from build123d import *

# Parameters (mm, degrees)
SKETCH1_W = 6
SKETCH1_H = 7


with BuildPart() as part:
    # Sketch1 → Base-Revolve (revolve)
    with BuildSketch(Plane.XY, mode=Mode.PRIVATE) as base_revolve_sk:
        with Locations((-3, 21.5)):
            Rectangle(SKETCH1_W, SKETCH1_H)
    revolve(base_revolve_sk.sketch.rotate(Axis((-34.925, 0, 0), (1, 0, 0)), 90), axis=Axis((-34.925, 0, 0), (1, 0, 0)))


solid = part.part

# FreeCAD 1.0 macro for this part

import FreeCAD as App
import Part
import Sketcher
from FreeCAD import Vector

doc = App.newDocument("Part")
body = doc.addObject("PartDesign::Body", "Body")

sketch1 = body.newObject("Sketcher::SketchObject", "Sketch")
sketch1.AttachmentSupport = (doc.getObject("XY_Plane"), [""])
sketch1.MapMode = "FlatFace"
sketch1.addGeometry([
    Part.LineSegment(Vector(-6, 25, 0), Vector(-6, 18, 0)),
    Part.LineSegment(Vector(-6, 18, 0), Vector(0, 18, 0)),
    Part.LineSegment(Vector(0, 18, 0), Vector(0, 25, 0)),
    Part.LineSegment(Vector(0, 25, 0), Vector(-6, 25, 0)),
], False)
sketch1.addConstraint([
    Sketcher.Constraint("Coincident", 0, 2, 1, 1),
    Sketcher.Constraint("Coincident", 1, 2, 2, 1),
    Sketcher.Constraint("Coincident", 2, 2, 3, 1),
    Sketcher.Constraint("Coincident", 3, 2, 0, 1),
    Sketcher.Constraint("Vertical", 0),
    Sketcher.Constraint("Horizontal", 1),
    Sketcher.Constraint("Vertical", 2),
    Sketcher.Constraint("Horizontal", 3),
    Sketcher.Constraint("PointOnObject", 1, 2, -2),
    Sketcher.Constraint("DistanceX", 1, 1, 1, 2, 6.0),
    Sketcher.Constraint("DistanceY", 0, 2, 0, 1, 7.0),
    Sketcher.Constraint("DistanceY", -1, 1, 0, 2, 18.0),
])
revolution = body.newObject("PartDesign::Revolution", "Revolution")
revolution.Profile = sketch1
revolution.ReferenceAxis = (sketch1, ["H_Axis"])
revolution.Angle = 360

doc.recompute()
